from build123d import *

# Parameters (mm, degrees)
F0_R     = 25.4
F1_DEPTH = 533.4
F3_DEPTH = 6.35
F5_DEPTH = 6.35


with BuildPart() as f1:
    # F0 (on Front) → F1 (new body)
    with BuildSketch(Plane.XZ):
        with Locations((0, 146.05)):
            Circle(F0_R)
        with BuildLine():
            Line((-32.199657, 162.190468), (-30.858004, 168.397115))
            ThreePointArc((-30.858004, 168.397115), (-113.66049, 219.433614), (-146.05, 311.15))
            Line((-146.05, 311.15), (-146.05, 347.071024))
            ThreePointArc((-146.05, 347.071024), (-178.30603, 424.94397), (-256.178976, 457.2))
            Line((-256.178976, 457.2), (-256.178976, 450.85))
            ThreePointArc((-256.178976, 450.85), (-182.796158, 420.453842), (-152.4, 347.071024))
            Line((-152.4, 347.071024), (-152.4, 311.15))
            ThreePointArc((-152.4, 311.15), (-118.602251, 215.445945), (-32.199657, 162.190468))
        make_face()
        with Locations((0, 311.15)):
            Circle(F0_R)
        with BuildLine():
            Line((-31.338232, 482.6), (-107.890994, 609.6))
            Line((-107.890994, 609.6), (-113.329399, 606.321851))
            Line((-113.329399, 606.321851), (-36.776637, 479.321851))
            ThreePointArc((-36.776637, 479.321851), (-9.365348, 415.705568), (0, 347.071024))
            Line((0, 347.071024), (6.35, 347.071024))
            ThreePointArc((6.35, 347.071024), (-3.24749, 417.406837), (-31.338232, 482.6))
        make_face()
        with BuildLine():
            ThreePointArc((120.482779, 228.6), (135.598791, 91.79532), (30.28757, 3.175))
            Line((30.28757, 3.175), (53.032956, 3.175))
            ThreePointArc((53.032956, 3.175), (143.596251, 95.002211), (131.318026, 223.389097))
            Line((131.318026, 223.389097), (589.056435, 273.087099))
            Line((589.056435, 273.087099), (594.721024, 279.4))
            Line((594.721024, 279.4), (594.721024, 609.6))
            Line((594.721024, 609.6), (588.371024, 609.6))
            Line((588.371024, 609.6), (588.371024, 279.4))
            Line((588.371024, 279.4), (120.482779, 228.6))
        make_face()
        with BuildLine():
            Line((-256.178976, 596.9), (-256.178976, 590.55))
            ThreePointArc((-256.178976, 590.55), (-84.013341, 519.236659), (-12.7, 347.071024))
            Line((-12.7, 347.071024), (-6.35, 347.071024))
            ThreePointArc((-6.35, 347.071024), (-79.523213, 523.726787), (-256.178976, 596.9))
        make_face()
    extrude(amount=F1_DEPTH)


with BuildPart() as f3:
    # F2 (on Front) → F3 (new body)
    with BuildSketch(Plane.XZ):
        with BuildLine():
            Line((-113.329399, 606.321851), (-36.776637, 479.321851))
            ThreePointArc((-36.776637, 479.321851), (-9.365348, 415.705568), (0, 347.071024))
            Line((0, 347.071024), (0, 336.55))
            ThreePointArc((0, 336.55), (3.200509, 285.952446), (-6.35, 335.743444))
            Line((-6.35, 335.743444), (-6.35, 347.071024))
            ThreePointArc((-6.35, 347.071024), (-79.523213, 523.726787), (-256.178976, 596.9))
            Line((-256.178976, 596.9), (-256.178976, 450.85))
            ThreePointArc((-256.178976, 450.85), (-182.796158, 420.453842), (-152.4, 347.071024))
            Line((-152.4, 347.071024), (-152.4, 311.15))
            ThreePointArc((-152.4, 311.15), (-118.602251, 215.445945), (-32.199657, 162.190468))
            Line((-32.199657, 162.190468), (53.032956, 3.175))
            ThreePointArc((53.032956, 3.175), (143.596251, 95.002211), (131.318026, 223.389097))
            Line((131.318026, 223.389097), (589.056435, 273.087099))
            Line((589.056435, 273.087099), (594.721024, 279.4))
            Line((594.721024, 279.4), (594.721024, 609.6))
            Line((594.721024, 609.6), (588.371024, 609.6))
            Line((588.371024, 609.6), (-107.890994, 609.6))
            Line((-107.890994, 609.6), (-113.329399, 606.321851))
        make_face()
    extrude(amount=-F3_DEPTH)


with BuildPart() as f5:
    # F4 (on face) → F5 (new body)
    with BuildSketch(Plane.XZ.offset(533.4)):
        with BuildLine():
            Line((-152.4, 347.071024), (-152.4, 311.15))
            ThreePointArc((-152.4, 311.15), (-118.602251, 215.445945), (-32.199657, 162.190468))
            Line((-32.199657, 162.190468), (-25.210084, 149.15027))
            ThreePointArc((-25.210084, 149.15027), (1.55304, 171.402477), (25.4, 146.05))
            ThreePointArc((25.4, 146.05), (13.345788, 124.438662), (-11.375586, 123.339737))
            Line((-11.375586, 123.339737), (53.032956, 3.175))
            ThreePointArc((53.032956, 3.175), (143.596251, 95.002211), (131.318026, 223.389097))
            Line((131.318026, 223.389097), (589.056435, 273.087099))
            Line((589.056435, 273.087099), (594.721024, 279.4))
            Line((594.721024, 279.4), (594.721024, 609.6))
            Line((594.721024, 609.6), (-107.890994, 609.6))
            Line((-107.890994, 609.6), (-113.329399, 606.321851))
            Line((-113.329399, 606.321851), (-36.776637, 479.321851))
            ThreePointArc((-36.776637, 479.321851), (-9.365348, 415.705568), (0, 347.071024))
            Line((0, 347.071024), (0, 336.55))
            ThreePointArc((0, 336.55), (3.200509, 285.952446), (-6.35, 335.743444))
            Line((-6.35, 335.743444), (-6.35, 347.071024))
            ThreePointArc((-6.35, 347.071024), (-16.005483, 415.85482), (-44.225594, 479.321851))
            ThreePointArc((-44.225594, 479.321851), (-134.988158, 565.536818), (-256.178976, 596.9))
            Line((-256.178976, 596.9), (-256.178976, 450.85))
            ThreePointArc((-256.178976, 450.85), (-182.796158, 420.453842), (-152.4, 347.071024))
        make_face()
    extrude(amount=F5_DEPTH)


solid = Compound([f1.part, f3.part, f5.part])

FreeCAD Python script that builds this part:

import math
import FreeCAD as App
import Part
import Sketcher
Q = App.Units.Quantity

doc = App.newDocument("Part")
params = doc.addObject("Spreadsheet::Sheet", "Params")
for row, (alias, value) in enumerate([
    ("sketch1_diameter", "2 in"),
    ("sketch1_radius", "6 in"),
    ("sketch1_height", "13 in"),
    ("sketch1_radius2", "5.7500001 in"),
    ("pad1_length", "21 in"),
    ("sketch2_radius", "1 in"),
    ("sketch2_radius2", "6 in"),
    ("sketch2_height", "13 in"),
    ("sketch2_height2", "5.75 in"),
    ("sketch2_length", "0.25 in"),
    ("pad2_length", "0.25 in"),
    ("sketch3_radius", "6 in"),
    ("sketch3_radius2", "1 in"),
    ("sketch3_height", "13 in"),
    ("sketch3_height2", "5.75 in"),
    ("sketch3_length", "0.25 in"),
    ("pad3_length", "0.25 in"),
], start=1):
    params.set(f"A{row}", alias)
    params.set(f"B{row}", "=" + value)
    params.setAlias(f"B{row}", alias)

body = doc.addObject("PartDesign::Body", "Body")
body.AllowCompound = True

# Sketch on XZ plane
sketch1 = body.newObject("Sketcher::SketchObject", "Sketch")
sketch1.AttachmentSupport = (doc.getObject("XZ_Plane"), [""])
sketch1.MapMode = "FlatFace"
sketch1.addGeometry([
    Part.Circle(App.Vector(0, 146, 0), App.Vector(0, 0, 1), 25),  # 0
    Part.LineSegment(App.Vector(-32, 162, 0), App.Vector(-31, 168, 0)),  # 1
    Part.ArcOfCircle(Part.Circle(App.Vector(0, 311, 0), App.Vector(0, 0, 1), 146), math.radians(-180), math.radians(-102)),  # 2
    Part.LineSegment(App.Vector(-146, 311, 0), App.Vector(-146, 347, 0)),  # 3
    Part.ArcOfCircle(Part.Circle(App.Vector(-256, 347, 0), App.Vector(0, 0, 1), 110), math.radians(0), math.radians(90)),  # 4
    Part.LineSegment(App.Vector(-256, 457, 0), App.Vector(-256, 451, 0)),  # 5
    Part.ArcOfCircle(Part.Circle(App.Vector(-256, 347, 0), App.Vector(0, 0, 1), 104), math.radians(0), math.radians(90)),  # 6
    Part.LineSegment(App.Vector(-152, 347, 0), App.Vector(-152, 311, 0)),  # 7
    Part.ArcOfCircle(Part.Circle(App.Vector(0, 311, 0), App.Vector(0, 0, 1), 152), math.radians(180), math.radians(258)),  # 8
    Part.Circle(App.Vector(0, 311, 0), App.Vector(0, 0, 1), 25),  # 9
    Part.LineSegment(App.Vector(-31, 483, 0), App.Vector(-108, 610, 0)),  # 10
    Part.LineSegment(App.Vector(-108, 610, 0), App.Vector(-113, 606, 0)),  # 11
    Part.LineSegment(App.Vector(-113, 606, 0), App.Vector(-37, 479, 0)),  # 12
    Part.ArcOfCircle(Part.Circle(App.Vector(-256, 347, 0), App.Vector(0, 0, 1), 256), math.radians(0), math.radians(31)),  # 13
    Part.LineSegment(App.Vector(0, 347, 0), App.Vector(6, 347, 0)),  # 14
    Part.ArcOfCircle(Part.Circle(App.Vector(-256, 347, 0), App.Vector(0, 0, 1), 263), math.radians(0), math.radians(31)),  # 15
    Part.ArcOfCircle(Part.Circle(App.Vector(0, 146, 0), App.Vector(0, 0, 1), 146), math.radians(-78), math.radians(34)),  # 16
    Part.LineSegment(App.Vector(30, 3, 0), App.Vector(53, 3, 0)),  # 17
    Part.ArcOfCircle(Part.Circle(App.Vector(0, 146, 0), App.Vector(0, 0, 1), 152), math.radians(-70), math.radians(30)),  # 18
    Part.LineSegment(App.Vector(131, 223, 0), App.Vector(589, 273, 0)),  # 19
    Part.LineSegment(App.Vector(589, 273, 0), App.Vector(595, 279, 0)),  # 20
    Part.LineSegment(App.Vector(595, 279, 0), App.Vector(595, 610, 0)),  # 21
    Part.LineSegment(App.Vector(595, 610, 0), App.Vector(588, 610, 0)),  # 22
    Part.LineSegment(App.Vector(588, 610, 0), App.Vector(588, 279, 0)),  # 23
    Part.LineSegment(App.Vector(588, 279, 0), App.Vector(120, 229, 0)),  # 24
    Part.LineSegment(App.Vector(-256, 597, 0), App.Vector(-256, 591, 0)),  # 25
    Part.ArcOfCircle(Part.Circle(App.Vector(-256, 347, 0), App.Vector(0, 0, 1), 243), math.radians(0), math.radians(90)),  # 26
    Part.LineSegment(App.Vector(-13, 347, 0), App.Vector(-6, 347, 0)),  # 27
    Part.ArcOfCircle(Part.Circle(App.Vector(-256, 347, 0), App.Vector(0, 0, 1), 250), math.radians(0), math.radians(90)),  # 28
], False)
sketch1.addConstraint([
    Sketcher.Constraint("Coincident", 1, 2, 2, 2),
    Sketcher.Constraint("Tangent", 2, 1, 3, 1),
    Sketcher.Constraint("Tangent", 3, 2, 4, 1),
    Sketcher.Constraint("Coincident", 4, 2, 5, 1),
    Sketcher.Constraint("Coincident", 5, 2, 6, 2),
    Sketcher.Constraint("Tangent", 6, 1, 7, 1),
    Sketcher.Constraint("Tangent", 7, 2, 8, 1),
    Sketcher.Constraint("Coincident", 8, 2, 1, 1),
    Sketcher.Constraint("Coincident", 10, 2, 11, 1),
    Sketcher.Constraint("Coincident", 11, 2, 12, 1),
    Sketcher.Constraint("Tangent", 12, 2, 13, 2),
    Sketcher.Constraint("Coincident", 13, 1, 14, 1),
    Sketcher.Constraint("Coincident", 14, 2, 15, 1),
    Sketcher.Constraint("Tangent", 15, 2, 10, 1),
    Sketcher.Constraint("Coincident", 16, 1, 17, 1),
    Sketcher.Constraint("Coincident", 17, 2, 18, 1),
    Sketcher.Constraint("Coincident", 18, 2, 19, 1),
    Sketcher.Constraint("Coincident", 19, 2, 20, 1),
    Sketcher.Constraint("Coincident", 20, 2, 21, 1),
    Sketcher.Constraint("Coincident", 21, 2, 22, 1),
    Sketcher.Constraint("Coincident", 22, 2, 23, 1),
    Sketcher.Constraint("Coincident", 23, 2, 24, 1),
    Sketcher.Constraint("Coincident", 24, 2, 16, 2),
    Sketcher.Constraint("Coincident", 25, 2, 26, 2),
    Sketcher.Constraint("Coincident", 26, 1, 27, 1),
    Sketcher.Constraint("Coincident", 27, 2, 28, 1),
    Sketcher.Constraint("Coincident", 28, 2, 25, 1),
    Sketcher.Constraint("Vertical", 3),
    Sketcher.Constraint("Vertical", 5),
    Sketcher.Constraint("Vertical", 7),
    Sketcher.Constraint("Horizontal", 14),
    Sketcher.Constraint("Horizontal", 17),
    Sketcher.Constraint("Vertical", 21),
    Sketcher.Constraint("Horizontal", 22),
    Sketcher.Constraint("Vertical", 23),
    Sketcher.Constraint("Vertical", 25),
    Sketcher.Constraint("Horizontal", 27),
    Sketcher.Constraint("Coincident", 6, 3, 4, 3),
    Sketcher.Constraint("Coincident", 8, 3, 2, 3),
    Sketcher.Constraint("Coincident", 9, 3, 2, 3),
    Sketcher.Constraint("Coincident", 13, 3, 4, 3),
    Sketcher.Constraint("Coincident", 15, 3, 4, 3),
    Sketcher.Constraint("Coincident", 16, 3, 0, 3),
    Sketcher.Constraint("Coincident", 18, 3, 0, 3),
    Sketcher.Constraint("Coincident", 26, 3, 4, 3),
    Sketcher.Constraint("Coincident", 28, 3, 4, 3),
    Sketcher.Constraint("Equal", 0, 9),
    Sketcher.Constraint("Equal", 2, 16),
    Sketcher.Constraint("Equal", 8, 18),
    Sketcher.Constraint("Symmetric", 14, 2, 27, 2, -2),
    Sketcher.Constraint("PointOnObject", 0, 3, -2),
    Sketcher.Constraint("PointOnObject", 2, 3, -2),
    Sketcher.Constraint("PointOnObject", 13, 1, -2),
    Sketcher.Constraint("Perpendicular", 10, 11),
    Sketcher.Constraint("Perpendicular", 11, 12),
    Sketcher.Constraint("Parallel", 19, 24),
    Sketcher.Constraint("Horizontal", 6, 1, 13, 1),
    Sketcher.Constraint("Horizontal", 10, 2, 21, 2),
    Sketcher.Constraint("Horizontal", 20, 2, 23, 2),
    Sketcher.Constraint("Vertical", 28, 3, 4, 2),
    Sketcher.Constraint("Vertical", 5, 2, 25, 2),
    Sketcher.Constraint("Equal", 14, 22),
    Sketcher.Constraint("Equal", 22, 27),
    Sketcher.Constraint("Equal", 27, 5),
    Sketcher.Constraint("Diameter", 0, Q("2 in")),
    Sketcher.Constraint("Radius", 8, Q("6 in")),
    Sketcher.Constraint("DistanceY", 21, 1, 21, 2, Q("13 in")),
    Sketcher.Constraint("Radius", 2, Q("5.7500001 in")),
    Sketcher.Constraint("DistanceY", -1, 1, 4, 2, Q("18 in")),
    Sketcher.Constraint("DistanceY", -1, 1, 10, 2, Q("24 in")),
    Sketcher.Constraint("DistanceY", -1, 1, 15, 2, Q("19 in")),
    Sketcher.Constraint("DistanceY", -1, 1, 24, 2, Q("9 in")),
    Sketcher.Constraint("DistanceY", 0, 3, 2, 3, Q("6.5 in")),
    Sketcher.Constraint("DistanceY", -1, 1, 0, 3, Q("5.75 in")),
    Sketcher.Constraint("DistanceY", -1, 1, 16, 1, Q("0.125 in")),
    Sketcher.Constraint("Radius", 13, Q("256.17898 mm")),
    Sketcher.Constraint("DistanceY", -1, 1, 19, 2, Q("273.087099 mm")),
    Sketcher.Constraint("DistanceY", -1, 1, 8, 2, Q("162.190468 mm")),
    Sketcher.Constraint("DistanceX", 18, 2, 19, 2, Q("457.738409 mm")),
    Sketcher.Constraint("DistanceX", 19, 2, 20, 2, Q("5.664589 mm")),
    Sketcher.Constraint("DistanceX", 1, 2, -1, 1, Q("30.858004 mm")),
])
sketch1.setExpression("Constraints[64]", "Params.sketch1_diameter")
sketch1.setExpression("Constraints[65]", "Params.sketch1_radius")
sketch1.setExpression("Constraints[66]", "Params.sketch1_height")
sketch1.setExpression("Constraints[67]", "Params.sketch1_radius2")
pad1 = body.newObject("PartDesign::Pad", "Pad")
pad1.Profile = sketch1
pad1.setExpression("Length", "Params.pad1_length")
body2 = doc.addObject("PartDesign::Body", "Body001")

# Sketch on XZ plane
sketch2 = body2.newObject("Sketcher::SketchObject", "Sketch001")
sketch2.AttachmentSupport = (doc.getObject("XZ_Plane001"), [""])
sketch2.MapMode = "FlatFace"
sketch2.addGeometry([
    Part.LineSegment(App.Vector(-113, 606, 0), App.Vector(-37, 479, 0)),  # 0
    Part.ArcOfCircle(Part.Circle(App.Vector(-256, 347, 0), App.Vector(0, 0, 1), 256), math.radians(0), math.radians(31)),  # 1
    Part.LineSegment(App.Vector(0, 347, 0), App.Vector(0, 337, 0)),  # 2
    Part.ArcOfCircle(Part.Circle(App.Vector(0, 311, 0), App.Vector(0, 0, 1), 25), math.radians(104), math.radians(450)),  # 3
    Part.LineSegment(App.Vector(-6, 336, 0), App.Vector(-6, 347, 0)),  # 4
    Part.ArcOfCircle(Part.Circle(App.Vector(-256, 347, 0), App.Vector(0, 0, 1), 250), math.radians(0), math.radians(90)),  # 5
    Part.LineSegment(App.Vector(-256, 597, 0), App.Vector(-256, 451, 0)),  # 6
    Part.ArcOfCircle(Part.Circle(App.Vector(-256, 347, 0), App.Vector(0, 0, 1), 104), math.radians(0), math.radians(90)),  # 7
    Part.LineSegment(App.Vector(-152, 347, 0), App.Vector(-152, 311, 0)),  # 8
    Part.ArcOfCircle(Part.Circle(App.Vector(0, 311, 0), App.Vector(0, 0, 1), 152), math.radians(180), math.radians(258)),  # 9
    Part.LineSegment(App.Vector(-32, 162, 0), App.Vector(53, 3, 0)),  # 10
    Part.ArcOfCircle(Part.Circle(App.Vector(0, 146, 0), App.Vector(0, 0, 1), 152), math.radians(-70), math.radians(30)),  # 11
    Part.LineSegment(App.Vector(131, 223, 0), App.Vector(589, 273, 0)),  # 12
    Part.LineSegment(App.Vector(589, 273, 0), App.Vector(595, 279, 0)),  # 13
    Part.LineSegment(App.Vector(595, 279, 0), App.Vector(595, 610, 0)),  # 14
    Part.LineSegment(App.Vector(595, 610, 0), App.Vector(-108, 610, 0)),  # 15
    Part.LineSegment(App.Vector(-108, 610, 0), App.Vector(-113, 606, 0)),  # 16
], False)
sketch2.addConstraint([
    Sketcher.Constraint("Tangent", 0, 2, 1, 2),
    Sketcher.Constraint("Tangent", 1, 1, 2, 1),
    Sketcher.Constraint("Coincident", 2, 2, 3, 2),
    Sketcher.Constraint("Coincident", 3, 1, 4, 1),
    Sketcher.Constraint("Tangent", 4, 2, 5, 1),
    Sketcher.Constraint("Coincident", 5, 2, 6, 1),
    Sketcher.Constraint("Coincident", 6, 2, 7, 2),
    Sketcher.Constraint("Tangent", 7, 1, 8, 1),
    Sketcher.Constraint("Tangent", 8, 2, 9, 1),
    Sketcher.Constraint("Coincident", 9, 2, 10, 1),
    Sketcher.Constraint("Coincident", 10, 2, 11, 1),
    Sketcher.Constraint("Coincident", 11, 2, 12, 1),
    Sketcher.Constraint("Coincident", 12, 2, 13, 1),
    Sketcher.Constraint("Coincident", 13, 2, 14, 1),
    Sketcher.Constraint("Coincident", 14, 2, 15, 1),
    Sketcher.Constraint("Coincident", 15, 2, 16, 1),
    Sketcher.Constraint("Coincident", 16, 2, 0, 1),
    Sketcher.Constraint("Vertical", 2),
    Sketcher.Constraint("Vertical", 4),
    Sketcher.Constraint("Vertical", 6),
    Sketcher.Constraint("Vertical", 8),
    Sketcher.Constraint("Vertical", 14),
    Sketcher.Constraint("Horizontal", 15),
    Sketcher.Constraint("Coincident", 5, 3, 1, 3),
    Sketcher.Constraint("Coincident", 7, 3, 1, 3),
    Sketcher.Constraint("Coincident", 9, 3, 3, 3),
    Sketcher.Constraint("Equal", 9, 11),
    Sketcher.Constraint("PointOnObject", 3, 3, -2),
    Sketcher.Constraint("PointOnObject", 11, 3, -2),
    Sketcher.Constraint("PointOnObject", 1, 1, -2),
    Sketcher.Constraint("Perpendicular", 0, 16),
    Sketcher.Constraint("Vertical", 7, 3, 5, 2),
    Sketcher.Constraint("Radius", 3, Q("1 in")),
    Sketcher.Constraint("Radius", 9, Q("6 in")),
    Sketcher.Constraint("DistanceY", 14, 1, 14, 2, Q("13 in")),
    Sketcher.Constraint("DistanceY", -1, 1, 13, 2, Q("11 in")),
    Sketcher.Constraint("DistanceY", 0, 2, 16, 2, Q("5 in")),
    Sketcher.Constraint("DistanceY", 6, 2, 6, 1, Q("5.75 in")),
    Sketcher.Constraint("DistanceY", -1, 1, 5, 2, Q("23.5 in")),
    Sketcher.Constraint("DistanceY", 11, 3, 9, 3, Q("6.5 in")),
    Sketcher.Constraint("Distance", 16, Q("0.25 in")),
    Sketcher.Constraint("DistanceY", -1, 1, 3, 3, Q("12.25 in")),
    Sketcher.Constraint("DistanceY", -1, 1, 10, 2, Q("0.125 in")),
    Sketcher.Constraint("Radius", 1, Q("256.17898 mm")),
    Sketcher.Constraint("DistanceX", 15, 2, 15, 1, Q("702.612018 mm")),
    Sketcher.Constraint("DistanceY", -1, 1, 12, 2, Q("273.087099 mm")),
    Sketcher.Constraint("DistanceY", 11, 2, 12, 2, Q("49.698002 mm")),
    Sketcher.Constraint("Distance", 10, Q("180.417619 mm")),
    Sketcher.Constraint("DistanceX", 11, 2, 12, 2, Q("457.738409 mm")),
])
sketch2.setExpression("Constraints[32]", "Params.sketch2_radius")
sketch2.setExpression("Constraints[33]", "Params.sketch2_radius2")
sketch2.setExpression("Constraints[34]", "Params.sketch2_height")
sketch2.setExpression("Constraints[37]", "Params.sketch2_height2")
sketch2.setExpression("Constraints[40]", "Params.sketch2_length")
pad2 = body2.newObject("PartDesign::Pad", "Pad001")
pad2.Profile = sketch2
pad2.setExpression("Length", "Params.pad2_length")
pad2.Reversed = True
body3 = doc.addObject("PartDesign::Body", "Body002")

# Sketch on XZ plane
sketch3 = body3.newObject("Sketcher::SketchObject", "Sketch002")
sketch3.AttachmentSupport = (doc.getObject("XZ_Plane002"), [""])
sketch3.MapMode = "FlatFace"
sketch3.AttachmentOffset = App.Placement(App.Vector(0, 0, 21 * 25.4), App.Rotation())
sketch3.addGeometry([
    Part.LineSegment(App.Vector(-152, 347, 0), App.Vector(-152, 311, 0)),  # 0
    Part.ArcOfCircle(Part.Circle(App.Vector(0, 311, 0), App.Vector(0, 0, 1), 152), math.radians(180), math.radians(258)),  # 1
    Part.LineSegment(App.Vector(-32, 162, 0), App.Vector(-25, 149, 0)),  # 2
    Part.ArcOfCircle(Part.Circle(App.Vector(0, 146, 0), App.Vector(0, 0, 1), 25), math.radians(0), math.radians(173)),  # 3
    Part.ArcOfCircle(Part.Circle(App.Vector(0, 146, 0), App.Vector(0, 0, 1), 25), math.radians(-117), math.radians(0)),  # 4
    Part.LineSegment(App.Vector(-11, 123, 0), App.Vector(53, 3, 0)),  # 5
    Part.ArcOfCircle(Part.Circle(App.Vector(0, 146, 0), App.Vector(0, 0, 1), 152), math.radians(-70), math.radians(30)),  # 6
    Part.LineSegment(App.Vector(131, 223, 0), App.Vector(589, 273, 0)),  # 7
    Part.LineSegment(App.Vector(589, 273, 0), App.Vector(595, 279, 0)),  # 8
    Part.LineSegment(App.Vector(595, 279, 0), App.Vector(595, 610, 0)),  # 9
    Part.LineSegment(App.Vector(595, 610, 0), App.Vector(-108, 610, 0)),  # 10
    Part.LineSegment(App.Vector(-108, 610, 0), App.Vector(-113, 606, 0)),  # 11
    Part.LineSegment(App.Vector(-113, 606, 0), App.Vector(-37, 479, 0)),  # 12
    Part.ArcOfCircle(Part.Circle(App.Vector(-256, 347, 0), App.Vector(0, 0, 1), 256), math.radians(0), math.radians(31)),  # 13
    Part.LineSegment(App.Vector(0, 347, 0), App.Vector(0, 337, 0)),  # 14
    Part.ArcOfCircle(Part.Circle(App.Vector(0, 311, 0), App.Vector(0, 0, 1), 25), math.radians(104), math.radians(450)),  # 15
    Part.LineSegment(App.Vector(-6, 336, 0), App.Vector(-6, 347, 0)),  # 16
    Part.ArcOfCircle(Part.Circle(App.Vector(-256, 347, 0), App.Vector(0, 0, 1), 250), math.radians(0), math.radians(32)),  # 17
    Part.ArcOfCircle(Part.Circle(App.Vector(-256, 347, 0), App.Vector(0, 0, 1), 250), math.radians(32), math.radians(90)),  # 18
    Part.LineSegment(App.Vector(-256, 597, 0), App.Vector(-256, 451, 0)),  # 19
    Part.ArcOfCircle(Part.Circle(App.Vector(-256, 347, 0), App.Vector(0, 0, 1), 104), math.radians(0), math.radians(90)),  # 20
], False)
sketch3.addConstraint([
    Sketcher.Constraint("Tangent", 0, 2, 1, 1),
    Sketcher.Constraint("Coincident", 1, 2, 2, 1),
    Sketcher.Constraint("Coincident", 2, 2, 3, 2),
    Sketcher.Constraint("Tangent", 3, 1, 4, 2),
    Sketcher.Constraint("Coincident", 4, 1, 5, 1),
    Sketcher.Constraint("Coincident", 5, 2, 6, 1),
    Sketcher.Constraint("Coincident", 6, 2, 7, 1),
    Sketcher.Constraint("Coincident", 7, 2, 8, 1),
    Sketcher.Constraint("Coincident", 8, 2, 9, 1),
    Sketcher.Constraint("Coincident", 9, 2, 10, 1),
    Sketcher.Constraint("Coincident", 10, 2, 11, 1),
    Sketcher.Constraint("Coincident", 11, 2, 12, 1),
    Sketcher.Constraint("Tangent", 12, 2, 13, 2),
    Sketcher.Constraint("Tangent", 13, 1, 14, 1),
    Sketcher.Constraint("Coincident", 14, 2, 15, 2),
    Sketcher.Constraint("Coincident", 15, 1, 16, 1),
    Sketcher.Constraint("Tangent", 16, 2, 17, 1),
    Sketcher.Constraint("Tangent", 17, 2, 18, 1),
    Sketcher.Constraint("Coincident", 18, 2, 19, 1),
    Sketcher.Constraint("Coincident", 19, 2, 20, 2),
    Sketcher.Constraint("Tangent", 20, 1, 0, 1),
    Sketcher.Constraint("Vertical", 0),
    Sketcher.Constraint("Vertical", 9),
    Sketcher.Constraint("Horizontal", 10),
    Sketcher.Constraint("Vertical", 14),
    Sketcher.Constraint("Vertical", 16),
    Sketcher.Constraint("Vertical", 19),
    Sketcher.Constraint("Coincident", 6, 3, 3, 3),
    Sketcher.Constraint("Coincident", 15, 3, 1, 3),
    Sketcher.Constraint("Coincident", 17, 3, 13, 3),
    Sketcher.Constraint("Coincident", 20, 3, 13, 3),
    Sketcher.Constraint("Equal", 3, 4),
    Sketcher.Constraint("Equal", 1, 6),
    Sketcher.Constraint("Equal", 4, 15),
    Sketcher.Constraint("Equal", 17, 18),
    Sketcher.Constraint("PointOnObject", 1, 3, -2),
    Sketcher.Constraint("PointOnObject", 3, 3, -2),
    Sketcher.Constraint("PointOnObject", 13, 1, -2),
    Sketcher.Constraint("Parallel", 2, 5),
    Sketcher.Constraint("Perpendicular", 11, 12),
    Sketcher.Constraint("Horizontal", 6, 3, 3, 1),
    Sketcher.Constraint("Horizontal", 12, 2, 17, 2),
    Sketcher.Constraint("Vertical", 20, 3, 18, 2),
    Sketcher.Constraint("Radius", 1, Q("6 in")),
    Sketcher.Constraint("Radius", 3, Q("1 in")),
    Sketcher.Constraint("DistanceY", 9, 1, 9, 2, Q("13 in")),
    Sketcher.Constraint("DistanceY", -1, 1, 8, 2, Q("11 in")),
    Sketcher.Constraint("DistanceY", 12, 2, 11, 2, Q("5 in")),
    Sketcher.Constraint("DistanceY", 19, 2, 19, 1, Q("5.75 in")),
    Sketcher.Constraint("DistanceY", -1, 1, 18, 2, Q("23.5 in")),
    Sketcher.Constraint("DistanceY", 3, 3, 1, 3, Q("6.5 in")),
    Sketcher.Constraint("Distance", 11, Q("0.25 in")),
    Sketcher.Constraint("DistanceY", -1, 1, 1, 3, Q("12.25 in")),
    Sketcher.Constraint("DistanceY", -1, 1, 5, 2, Q("0.125 in")),
    Sketcher.Constraint("Radius", 13, Q("256.17898 mm")),
    Sketcher.Constraint("Distance", 2, Q("14.7953 mm")),
    Sketcher.Constraint("DistanceX", 10, 2, 10, 1, Q("702.612018 mm")),
    Sketcher.Constraint("DistanceY", -1, 1, 7, 2, Q("273.087099 mm")),
    Sketcher.Constraint("DistanceY", 6, 2, 7, 2, Q("49.698002 mm")),
    Sketcher.Constraint("DistanceY", -1, 1, 2, 2, Q("149.15027 mm")),
    Sketcher.Constraint("DistanceX", 6, 2, 7, 2, Q("457.738409 mm")),
])
sketch3.setExpression("Constraints[43]", "Params.sketch3_radius")
sketch3.setExpression("Constraints[44]", "Params.sketch3_radius2")
sketch3.setExpression("Constraints[45]", "Params.sketch3_height")
sketch3.setExpression("Constraints[48]", "Params.sketch3_height2")
sketch3.setExpression("Constraints[51]", "Params.sketch3_length")
pad3 = body3.newObject("PartDesign::Pad", "Pad002")
pad3.Profile = sketch3
pad3.setExpression("Length", "Params.pad3_length")

doc.recompute()
